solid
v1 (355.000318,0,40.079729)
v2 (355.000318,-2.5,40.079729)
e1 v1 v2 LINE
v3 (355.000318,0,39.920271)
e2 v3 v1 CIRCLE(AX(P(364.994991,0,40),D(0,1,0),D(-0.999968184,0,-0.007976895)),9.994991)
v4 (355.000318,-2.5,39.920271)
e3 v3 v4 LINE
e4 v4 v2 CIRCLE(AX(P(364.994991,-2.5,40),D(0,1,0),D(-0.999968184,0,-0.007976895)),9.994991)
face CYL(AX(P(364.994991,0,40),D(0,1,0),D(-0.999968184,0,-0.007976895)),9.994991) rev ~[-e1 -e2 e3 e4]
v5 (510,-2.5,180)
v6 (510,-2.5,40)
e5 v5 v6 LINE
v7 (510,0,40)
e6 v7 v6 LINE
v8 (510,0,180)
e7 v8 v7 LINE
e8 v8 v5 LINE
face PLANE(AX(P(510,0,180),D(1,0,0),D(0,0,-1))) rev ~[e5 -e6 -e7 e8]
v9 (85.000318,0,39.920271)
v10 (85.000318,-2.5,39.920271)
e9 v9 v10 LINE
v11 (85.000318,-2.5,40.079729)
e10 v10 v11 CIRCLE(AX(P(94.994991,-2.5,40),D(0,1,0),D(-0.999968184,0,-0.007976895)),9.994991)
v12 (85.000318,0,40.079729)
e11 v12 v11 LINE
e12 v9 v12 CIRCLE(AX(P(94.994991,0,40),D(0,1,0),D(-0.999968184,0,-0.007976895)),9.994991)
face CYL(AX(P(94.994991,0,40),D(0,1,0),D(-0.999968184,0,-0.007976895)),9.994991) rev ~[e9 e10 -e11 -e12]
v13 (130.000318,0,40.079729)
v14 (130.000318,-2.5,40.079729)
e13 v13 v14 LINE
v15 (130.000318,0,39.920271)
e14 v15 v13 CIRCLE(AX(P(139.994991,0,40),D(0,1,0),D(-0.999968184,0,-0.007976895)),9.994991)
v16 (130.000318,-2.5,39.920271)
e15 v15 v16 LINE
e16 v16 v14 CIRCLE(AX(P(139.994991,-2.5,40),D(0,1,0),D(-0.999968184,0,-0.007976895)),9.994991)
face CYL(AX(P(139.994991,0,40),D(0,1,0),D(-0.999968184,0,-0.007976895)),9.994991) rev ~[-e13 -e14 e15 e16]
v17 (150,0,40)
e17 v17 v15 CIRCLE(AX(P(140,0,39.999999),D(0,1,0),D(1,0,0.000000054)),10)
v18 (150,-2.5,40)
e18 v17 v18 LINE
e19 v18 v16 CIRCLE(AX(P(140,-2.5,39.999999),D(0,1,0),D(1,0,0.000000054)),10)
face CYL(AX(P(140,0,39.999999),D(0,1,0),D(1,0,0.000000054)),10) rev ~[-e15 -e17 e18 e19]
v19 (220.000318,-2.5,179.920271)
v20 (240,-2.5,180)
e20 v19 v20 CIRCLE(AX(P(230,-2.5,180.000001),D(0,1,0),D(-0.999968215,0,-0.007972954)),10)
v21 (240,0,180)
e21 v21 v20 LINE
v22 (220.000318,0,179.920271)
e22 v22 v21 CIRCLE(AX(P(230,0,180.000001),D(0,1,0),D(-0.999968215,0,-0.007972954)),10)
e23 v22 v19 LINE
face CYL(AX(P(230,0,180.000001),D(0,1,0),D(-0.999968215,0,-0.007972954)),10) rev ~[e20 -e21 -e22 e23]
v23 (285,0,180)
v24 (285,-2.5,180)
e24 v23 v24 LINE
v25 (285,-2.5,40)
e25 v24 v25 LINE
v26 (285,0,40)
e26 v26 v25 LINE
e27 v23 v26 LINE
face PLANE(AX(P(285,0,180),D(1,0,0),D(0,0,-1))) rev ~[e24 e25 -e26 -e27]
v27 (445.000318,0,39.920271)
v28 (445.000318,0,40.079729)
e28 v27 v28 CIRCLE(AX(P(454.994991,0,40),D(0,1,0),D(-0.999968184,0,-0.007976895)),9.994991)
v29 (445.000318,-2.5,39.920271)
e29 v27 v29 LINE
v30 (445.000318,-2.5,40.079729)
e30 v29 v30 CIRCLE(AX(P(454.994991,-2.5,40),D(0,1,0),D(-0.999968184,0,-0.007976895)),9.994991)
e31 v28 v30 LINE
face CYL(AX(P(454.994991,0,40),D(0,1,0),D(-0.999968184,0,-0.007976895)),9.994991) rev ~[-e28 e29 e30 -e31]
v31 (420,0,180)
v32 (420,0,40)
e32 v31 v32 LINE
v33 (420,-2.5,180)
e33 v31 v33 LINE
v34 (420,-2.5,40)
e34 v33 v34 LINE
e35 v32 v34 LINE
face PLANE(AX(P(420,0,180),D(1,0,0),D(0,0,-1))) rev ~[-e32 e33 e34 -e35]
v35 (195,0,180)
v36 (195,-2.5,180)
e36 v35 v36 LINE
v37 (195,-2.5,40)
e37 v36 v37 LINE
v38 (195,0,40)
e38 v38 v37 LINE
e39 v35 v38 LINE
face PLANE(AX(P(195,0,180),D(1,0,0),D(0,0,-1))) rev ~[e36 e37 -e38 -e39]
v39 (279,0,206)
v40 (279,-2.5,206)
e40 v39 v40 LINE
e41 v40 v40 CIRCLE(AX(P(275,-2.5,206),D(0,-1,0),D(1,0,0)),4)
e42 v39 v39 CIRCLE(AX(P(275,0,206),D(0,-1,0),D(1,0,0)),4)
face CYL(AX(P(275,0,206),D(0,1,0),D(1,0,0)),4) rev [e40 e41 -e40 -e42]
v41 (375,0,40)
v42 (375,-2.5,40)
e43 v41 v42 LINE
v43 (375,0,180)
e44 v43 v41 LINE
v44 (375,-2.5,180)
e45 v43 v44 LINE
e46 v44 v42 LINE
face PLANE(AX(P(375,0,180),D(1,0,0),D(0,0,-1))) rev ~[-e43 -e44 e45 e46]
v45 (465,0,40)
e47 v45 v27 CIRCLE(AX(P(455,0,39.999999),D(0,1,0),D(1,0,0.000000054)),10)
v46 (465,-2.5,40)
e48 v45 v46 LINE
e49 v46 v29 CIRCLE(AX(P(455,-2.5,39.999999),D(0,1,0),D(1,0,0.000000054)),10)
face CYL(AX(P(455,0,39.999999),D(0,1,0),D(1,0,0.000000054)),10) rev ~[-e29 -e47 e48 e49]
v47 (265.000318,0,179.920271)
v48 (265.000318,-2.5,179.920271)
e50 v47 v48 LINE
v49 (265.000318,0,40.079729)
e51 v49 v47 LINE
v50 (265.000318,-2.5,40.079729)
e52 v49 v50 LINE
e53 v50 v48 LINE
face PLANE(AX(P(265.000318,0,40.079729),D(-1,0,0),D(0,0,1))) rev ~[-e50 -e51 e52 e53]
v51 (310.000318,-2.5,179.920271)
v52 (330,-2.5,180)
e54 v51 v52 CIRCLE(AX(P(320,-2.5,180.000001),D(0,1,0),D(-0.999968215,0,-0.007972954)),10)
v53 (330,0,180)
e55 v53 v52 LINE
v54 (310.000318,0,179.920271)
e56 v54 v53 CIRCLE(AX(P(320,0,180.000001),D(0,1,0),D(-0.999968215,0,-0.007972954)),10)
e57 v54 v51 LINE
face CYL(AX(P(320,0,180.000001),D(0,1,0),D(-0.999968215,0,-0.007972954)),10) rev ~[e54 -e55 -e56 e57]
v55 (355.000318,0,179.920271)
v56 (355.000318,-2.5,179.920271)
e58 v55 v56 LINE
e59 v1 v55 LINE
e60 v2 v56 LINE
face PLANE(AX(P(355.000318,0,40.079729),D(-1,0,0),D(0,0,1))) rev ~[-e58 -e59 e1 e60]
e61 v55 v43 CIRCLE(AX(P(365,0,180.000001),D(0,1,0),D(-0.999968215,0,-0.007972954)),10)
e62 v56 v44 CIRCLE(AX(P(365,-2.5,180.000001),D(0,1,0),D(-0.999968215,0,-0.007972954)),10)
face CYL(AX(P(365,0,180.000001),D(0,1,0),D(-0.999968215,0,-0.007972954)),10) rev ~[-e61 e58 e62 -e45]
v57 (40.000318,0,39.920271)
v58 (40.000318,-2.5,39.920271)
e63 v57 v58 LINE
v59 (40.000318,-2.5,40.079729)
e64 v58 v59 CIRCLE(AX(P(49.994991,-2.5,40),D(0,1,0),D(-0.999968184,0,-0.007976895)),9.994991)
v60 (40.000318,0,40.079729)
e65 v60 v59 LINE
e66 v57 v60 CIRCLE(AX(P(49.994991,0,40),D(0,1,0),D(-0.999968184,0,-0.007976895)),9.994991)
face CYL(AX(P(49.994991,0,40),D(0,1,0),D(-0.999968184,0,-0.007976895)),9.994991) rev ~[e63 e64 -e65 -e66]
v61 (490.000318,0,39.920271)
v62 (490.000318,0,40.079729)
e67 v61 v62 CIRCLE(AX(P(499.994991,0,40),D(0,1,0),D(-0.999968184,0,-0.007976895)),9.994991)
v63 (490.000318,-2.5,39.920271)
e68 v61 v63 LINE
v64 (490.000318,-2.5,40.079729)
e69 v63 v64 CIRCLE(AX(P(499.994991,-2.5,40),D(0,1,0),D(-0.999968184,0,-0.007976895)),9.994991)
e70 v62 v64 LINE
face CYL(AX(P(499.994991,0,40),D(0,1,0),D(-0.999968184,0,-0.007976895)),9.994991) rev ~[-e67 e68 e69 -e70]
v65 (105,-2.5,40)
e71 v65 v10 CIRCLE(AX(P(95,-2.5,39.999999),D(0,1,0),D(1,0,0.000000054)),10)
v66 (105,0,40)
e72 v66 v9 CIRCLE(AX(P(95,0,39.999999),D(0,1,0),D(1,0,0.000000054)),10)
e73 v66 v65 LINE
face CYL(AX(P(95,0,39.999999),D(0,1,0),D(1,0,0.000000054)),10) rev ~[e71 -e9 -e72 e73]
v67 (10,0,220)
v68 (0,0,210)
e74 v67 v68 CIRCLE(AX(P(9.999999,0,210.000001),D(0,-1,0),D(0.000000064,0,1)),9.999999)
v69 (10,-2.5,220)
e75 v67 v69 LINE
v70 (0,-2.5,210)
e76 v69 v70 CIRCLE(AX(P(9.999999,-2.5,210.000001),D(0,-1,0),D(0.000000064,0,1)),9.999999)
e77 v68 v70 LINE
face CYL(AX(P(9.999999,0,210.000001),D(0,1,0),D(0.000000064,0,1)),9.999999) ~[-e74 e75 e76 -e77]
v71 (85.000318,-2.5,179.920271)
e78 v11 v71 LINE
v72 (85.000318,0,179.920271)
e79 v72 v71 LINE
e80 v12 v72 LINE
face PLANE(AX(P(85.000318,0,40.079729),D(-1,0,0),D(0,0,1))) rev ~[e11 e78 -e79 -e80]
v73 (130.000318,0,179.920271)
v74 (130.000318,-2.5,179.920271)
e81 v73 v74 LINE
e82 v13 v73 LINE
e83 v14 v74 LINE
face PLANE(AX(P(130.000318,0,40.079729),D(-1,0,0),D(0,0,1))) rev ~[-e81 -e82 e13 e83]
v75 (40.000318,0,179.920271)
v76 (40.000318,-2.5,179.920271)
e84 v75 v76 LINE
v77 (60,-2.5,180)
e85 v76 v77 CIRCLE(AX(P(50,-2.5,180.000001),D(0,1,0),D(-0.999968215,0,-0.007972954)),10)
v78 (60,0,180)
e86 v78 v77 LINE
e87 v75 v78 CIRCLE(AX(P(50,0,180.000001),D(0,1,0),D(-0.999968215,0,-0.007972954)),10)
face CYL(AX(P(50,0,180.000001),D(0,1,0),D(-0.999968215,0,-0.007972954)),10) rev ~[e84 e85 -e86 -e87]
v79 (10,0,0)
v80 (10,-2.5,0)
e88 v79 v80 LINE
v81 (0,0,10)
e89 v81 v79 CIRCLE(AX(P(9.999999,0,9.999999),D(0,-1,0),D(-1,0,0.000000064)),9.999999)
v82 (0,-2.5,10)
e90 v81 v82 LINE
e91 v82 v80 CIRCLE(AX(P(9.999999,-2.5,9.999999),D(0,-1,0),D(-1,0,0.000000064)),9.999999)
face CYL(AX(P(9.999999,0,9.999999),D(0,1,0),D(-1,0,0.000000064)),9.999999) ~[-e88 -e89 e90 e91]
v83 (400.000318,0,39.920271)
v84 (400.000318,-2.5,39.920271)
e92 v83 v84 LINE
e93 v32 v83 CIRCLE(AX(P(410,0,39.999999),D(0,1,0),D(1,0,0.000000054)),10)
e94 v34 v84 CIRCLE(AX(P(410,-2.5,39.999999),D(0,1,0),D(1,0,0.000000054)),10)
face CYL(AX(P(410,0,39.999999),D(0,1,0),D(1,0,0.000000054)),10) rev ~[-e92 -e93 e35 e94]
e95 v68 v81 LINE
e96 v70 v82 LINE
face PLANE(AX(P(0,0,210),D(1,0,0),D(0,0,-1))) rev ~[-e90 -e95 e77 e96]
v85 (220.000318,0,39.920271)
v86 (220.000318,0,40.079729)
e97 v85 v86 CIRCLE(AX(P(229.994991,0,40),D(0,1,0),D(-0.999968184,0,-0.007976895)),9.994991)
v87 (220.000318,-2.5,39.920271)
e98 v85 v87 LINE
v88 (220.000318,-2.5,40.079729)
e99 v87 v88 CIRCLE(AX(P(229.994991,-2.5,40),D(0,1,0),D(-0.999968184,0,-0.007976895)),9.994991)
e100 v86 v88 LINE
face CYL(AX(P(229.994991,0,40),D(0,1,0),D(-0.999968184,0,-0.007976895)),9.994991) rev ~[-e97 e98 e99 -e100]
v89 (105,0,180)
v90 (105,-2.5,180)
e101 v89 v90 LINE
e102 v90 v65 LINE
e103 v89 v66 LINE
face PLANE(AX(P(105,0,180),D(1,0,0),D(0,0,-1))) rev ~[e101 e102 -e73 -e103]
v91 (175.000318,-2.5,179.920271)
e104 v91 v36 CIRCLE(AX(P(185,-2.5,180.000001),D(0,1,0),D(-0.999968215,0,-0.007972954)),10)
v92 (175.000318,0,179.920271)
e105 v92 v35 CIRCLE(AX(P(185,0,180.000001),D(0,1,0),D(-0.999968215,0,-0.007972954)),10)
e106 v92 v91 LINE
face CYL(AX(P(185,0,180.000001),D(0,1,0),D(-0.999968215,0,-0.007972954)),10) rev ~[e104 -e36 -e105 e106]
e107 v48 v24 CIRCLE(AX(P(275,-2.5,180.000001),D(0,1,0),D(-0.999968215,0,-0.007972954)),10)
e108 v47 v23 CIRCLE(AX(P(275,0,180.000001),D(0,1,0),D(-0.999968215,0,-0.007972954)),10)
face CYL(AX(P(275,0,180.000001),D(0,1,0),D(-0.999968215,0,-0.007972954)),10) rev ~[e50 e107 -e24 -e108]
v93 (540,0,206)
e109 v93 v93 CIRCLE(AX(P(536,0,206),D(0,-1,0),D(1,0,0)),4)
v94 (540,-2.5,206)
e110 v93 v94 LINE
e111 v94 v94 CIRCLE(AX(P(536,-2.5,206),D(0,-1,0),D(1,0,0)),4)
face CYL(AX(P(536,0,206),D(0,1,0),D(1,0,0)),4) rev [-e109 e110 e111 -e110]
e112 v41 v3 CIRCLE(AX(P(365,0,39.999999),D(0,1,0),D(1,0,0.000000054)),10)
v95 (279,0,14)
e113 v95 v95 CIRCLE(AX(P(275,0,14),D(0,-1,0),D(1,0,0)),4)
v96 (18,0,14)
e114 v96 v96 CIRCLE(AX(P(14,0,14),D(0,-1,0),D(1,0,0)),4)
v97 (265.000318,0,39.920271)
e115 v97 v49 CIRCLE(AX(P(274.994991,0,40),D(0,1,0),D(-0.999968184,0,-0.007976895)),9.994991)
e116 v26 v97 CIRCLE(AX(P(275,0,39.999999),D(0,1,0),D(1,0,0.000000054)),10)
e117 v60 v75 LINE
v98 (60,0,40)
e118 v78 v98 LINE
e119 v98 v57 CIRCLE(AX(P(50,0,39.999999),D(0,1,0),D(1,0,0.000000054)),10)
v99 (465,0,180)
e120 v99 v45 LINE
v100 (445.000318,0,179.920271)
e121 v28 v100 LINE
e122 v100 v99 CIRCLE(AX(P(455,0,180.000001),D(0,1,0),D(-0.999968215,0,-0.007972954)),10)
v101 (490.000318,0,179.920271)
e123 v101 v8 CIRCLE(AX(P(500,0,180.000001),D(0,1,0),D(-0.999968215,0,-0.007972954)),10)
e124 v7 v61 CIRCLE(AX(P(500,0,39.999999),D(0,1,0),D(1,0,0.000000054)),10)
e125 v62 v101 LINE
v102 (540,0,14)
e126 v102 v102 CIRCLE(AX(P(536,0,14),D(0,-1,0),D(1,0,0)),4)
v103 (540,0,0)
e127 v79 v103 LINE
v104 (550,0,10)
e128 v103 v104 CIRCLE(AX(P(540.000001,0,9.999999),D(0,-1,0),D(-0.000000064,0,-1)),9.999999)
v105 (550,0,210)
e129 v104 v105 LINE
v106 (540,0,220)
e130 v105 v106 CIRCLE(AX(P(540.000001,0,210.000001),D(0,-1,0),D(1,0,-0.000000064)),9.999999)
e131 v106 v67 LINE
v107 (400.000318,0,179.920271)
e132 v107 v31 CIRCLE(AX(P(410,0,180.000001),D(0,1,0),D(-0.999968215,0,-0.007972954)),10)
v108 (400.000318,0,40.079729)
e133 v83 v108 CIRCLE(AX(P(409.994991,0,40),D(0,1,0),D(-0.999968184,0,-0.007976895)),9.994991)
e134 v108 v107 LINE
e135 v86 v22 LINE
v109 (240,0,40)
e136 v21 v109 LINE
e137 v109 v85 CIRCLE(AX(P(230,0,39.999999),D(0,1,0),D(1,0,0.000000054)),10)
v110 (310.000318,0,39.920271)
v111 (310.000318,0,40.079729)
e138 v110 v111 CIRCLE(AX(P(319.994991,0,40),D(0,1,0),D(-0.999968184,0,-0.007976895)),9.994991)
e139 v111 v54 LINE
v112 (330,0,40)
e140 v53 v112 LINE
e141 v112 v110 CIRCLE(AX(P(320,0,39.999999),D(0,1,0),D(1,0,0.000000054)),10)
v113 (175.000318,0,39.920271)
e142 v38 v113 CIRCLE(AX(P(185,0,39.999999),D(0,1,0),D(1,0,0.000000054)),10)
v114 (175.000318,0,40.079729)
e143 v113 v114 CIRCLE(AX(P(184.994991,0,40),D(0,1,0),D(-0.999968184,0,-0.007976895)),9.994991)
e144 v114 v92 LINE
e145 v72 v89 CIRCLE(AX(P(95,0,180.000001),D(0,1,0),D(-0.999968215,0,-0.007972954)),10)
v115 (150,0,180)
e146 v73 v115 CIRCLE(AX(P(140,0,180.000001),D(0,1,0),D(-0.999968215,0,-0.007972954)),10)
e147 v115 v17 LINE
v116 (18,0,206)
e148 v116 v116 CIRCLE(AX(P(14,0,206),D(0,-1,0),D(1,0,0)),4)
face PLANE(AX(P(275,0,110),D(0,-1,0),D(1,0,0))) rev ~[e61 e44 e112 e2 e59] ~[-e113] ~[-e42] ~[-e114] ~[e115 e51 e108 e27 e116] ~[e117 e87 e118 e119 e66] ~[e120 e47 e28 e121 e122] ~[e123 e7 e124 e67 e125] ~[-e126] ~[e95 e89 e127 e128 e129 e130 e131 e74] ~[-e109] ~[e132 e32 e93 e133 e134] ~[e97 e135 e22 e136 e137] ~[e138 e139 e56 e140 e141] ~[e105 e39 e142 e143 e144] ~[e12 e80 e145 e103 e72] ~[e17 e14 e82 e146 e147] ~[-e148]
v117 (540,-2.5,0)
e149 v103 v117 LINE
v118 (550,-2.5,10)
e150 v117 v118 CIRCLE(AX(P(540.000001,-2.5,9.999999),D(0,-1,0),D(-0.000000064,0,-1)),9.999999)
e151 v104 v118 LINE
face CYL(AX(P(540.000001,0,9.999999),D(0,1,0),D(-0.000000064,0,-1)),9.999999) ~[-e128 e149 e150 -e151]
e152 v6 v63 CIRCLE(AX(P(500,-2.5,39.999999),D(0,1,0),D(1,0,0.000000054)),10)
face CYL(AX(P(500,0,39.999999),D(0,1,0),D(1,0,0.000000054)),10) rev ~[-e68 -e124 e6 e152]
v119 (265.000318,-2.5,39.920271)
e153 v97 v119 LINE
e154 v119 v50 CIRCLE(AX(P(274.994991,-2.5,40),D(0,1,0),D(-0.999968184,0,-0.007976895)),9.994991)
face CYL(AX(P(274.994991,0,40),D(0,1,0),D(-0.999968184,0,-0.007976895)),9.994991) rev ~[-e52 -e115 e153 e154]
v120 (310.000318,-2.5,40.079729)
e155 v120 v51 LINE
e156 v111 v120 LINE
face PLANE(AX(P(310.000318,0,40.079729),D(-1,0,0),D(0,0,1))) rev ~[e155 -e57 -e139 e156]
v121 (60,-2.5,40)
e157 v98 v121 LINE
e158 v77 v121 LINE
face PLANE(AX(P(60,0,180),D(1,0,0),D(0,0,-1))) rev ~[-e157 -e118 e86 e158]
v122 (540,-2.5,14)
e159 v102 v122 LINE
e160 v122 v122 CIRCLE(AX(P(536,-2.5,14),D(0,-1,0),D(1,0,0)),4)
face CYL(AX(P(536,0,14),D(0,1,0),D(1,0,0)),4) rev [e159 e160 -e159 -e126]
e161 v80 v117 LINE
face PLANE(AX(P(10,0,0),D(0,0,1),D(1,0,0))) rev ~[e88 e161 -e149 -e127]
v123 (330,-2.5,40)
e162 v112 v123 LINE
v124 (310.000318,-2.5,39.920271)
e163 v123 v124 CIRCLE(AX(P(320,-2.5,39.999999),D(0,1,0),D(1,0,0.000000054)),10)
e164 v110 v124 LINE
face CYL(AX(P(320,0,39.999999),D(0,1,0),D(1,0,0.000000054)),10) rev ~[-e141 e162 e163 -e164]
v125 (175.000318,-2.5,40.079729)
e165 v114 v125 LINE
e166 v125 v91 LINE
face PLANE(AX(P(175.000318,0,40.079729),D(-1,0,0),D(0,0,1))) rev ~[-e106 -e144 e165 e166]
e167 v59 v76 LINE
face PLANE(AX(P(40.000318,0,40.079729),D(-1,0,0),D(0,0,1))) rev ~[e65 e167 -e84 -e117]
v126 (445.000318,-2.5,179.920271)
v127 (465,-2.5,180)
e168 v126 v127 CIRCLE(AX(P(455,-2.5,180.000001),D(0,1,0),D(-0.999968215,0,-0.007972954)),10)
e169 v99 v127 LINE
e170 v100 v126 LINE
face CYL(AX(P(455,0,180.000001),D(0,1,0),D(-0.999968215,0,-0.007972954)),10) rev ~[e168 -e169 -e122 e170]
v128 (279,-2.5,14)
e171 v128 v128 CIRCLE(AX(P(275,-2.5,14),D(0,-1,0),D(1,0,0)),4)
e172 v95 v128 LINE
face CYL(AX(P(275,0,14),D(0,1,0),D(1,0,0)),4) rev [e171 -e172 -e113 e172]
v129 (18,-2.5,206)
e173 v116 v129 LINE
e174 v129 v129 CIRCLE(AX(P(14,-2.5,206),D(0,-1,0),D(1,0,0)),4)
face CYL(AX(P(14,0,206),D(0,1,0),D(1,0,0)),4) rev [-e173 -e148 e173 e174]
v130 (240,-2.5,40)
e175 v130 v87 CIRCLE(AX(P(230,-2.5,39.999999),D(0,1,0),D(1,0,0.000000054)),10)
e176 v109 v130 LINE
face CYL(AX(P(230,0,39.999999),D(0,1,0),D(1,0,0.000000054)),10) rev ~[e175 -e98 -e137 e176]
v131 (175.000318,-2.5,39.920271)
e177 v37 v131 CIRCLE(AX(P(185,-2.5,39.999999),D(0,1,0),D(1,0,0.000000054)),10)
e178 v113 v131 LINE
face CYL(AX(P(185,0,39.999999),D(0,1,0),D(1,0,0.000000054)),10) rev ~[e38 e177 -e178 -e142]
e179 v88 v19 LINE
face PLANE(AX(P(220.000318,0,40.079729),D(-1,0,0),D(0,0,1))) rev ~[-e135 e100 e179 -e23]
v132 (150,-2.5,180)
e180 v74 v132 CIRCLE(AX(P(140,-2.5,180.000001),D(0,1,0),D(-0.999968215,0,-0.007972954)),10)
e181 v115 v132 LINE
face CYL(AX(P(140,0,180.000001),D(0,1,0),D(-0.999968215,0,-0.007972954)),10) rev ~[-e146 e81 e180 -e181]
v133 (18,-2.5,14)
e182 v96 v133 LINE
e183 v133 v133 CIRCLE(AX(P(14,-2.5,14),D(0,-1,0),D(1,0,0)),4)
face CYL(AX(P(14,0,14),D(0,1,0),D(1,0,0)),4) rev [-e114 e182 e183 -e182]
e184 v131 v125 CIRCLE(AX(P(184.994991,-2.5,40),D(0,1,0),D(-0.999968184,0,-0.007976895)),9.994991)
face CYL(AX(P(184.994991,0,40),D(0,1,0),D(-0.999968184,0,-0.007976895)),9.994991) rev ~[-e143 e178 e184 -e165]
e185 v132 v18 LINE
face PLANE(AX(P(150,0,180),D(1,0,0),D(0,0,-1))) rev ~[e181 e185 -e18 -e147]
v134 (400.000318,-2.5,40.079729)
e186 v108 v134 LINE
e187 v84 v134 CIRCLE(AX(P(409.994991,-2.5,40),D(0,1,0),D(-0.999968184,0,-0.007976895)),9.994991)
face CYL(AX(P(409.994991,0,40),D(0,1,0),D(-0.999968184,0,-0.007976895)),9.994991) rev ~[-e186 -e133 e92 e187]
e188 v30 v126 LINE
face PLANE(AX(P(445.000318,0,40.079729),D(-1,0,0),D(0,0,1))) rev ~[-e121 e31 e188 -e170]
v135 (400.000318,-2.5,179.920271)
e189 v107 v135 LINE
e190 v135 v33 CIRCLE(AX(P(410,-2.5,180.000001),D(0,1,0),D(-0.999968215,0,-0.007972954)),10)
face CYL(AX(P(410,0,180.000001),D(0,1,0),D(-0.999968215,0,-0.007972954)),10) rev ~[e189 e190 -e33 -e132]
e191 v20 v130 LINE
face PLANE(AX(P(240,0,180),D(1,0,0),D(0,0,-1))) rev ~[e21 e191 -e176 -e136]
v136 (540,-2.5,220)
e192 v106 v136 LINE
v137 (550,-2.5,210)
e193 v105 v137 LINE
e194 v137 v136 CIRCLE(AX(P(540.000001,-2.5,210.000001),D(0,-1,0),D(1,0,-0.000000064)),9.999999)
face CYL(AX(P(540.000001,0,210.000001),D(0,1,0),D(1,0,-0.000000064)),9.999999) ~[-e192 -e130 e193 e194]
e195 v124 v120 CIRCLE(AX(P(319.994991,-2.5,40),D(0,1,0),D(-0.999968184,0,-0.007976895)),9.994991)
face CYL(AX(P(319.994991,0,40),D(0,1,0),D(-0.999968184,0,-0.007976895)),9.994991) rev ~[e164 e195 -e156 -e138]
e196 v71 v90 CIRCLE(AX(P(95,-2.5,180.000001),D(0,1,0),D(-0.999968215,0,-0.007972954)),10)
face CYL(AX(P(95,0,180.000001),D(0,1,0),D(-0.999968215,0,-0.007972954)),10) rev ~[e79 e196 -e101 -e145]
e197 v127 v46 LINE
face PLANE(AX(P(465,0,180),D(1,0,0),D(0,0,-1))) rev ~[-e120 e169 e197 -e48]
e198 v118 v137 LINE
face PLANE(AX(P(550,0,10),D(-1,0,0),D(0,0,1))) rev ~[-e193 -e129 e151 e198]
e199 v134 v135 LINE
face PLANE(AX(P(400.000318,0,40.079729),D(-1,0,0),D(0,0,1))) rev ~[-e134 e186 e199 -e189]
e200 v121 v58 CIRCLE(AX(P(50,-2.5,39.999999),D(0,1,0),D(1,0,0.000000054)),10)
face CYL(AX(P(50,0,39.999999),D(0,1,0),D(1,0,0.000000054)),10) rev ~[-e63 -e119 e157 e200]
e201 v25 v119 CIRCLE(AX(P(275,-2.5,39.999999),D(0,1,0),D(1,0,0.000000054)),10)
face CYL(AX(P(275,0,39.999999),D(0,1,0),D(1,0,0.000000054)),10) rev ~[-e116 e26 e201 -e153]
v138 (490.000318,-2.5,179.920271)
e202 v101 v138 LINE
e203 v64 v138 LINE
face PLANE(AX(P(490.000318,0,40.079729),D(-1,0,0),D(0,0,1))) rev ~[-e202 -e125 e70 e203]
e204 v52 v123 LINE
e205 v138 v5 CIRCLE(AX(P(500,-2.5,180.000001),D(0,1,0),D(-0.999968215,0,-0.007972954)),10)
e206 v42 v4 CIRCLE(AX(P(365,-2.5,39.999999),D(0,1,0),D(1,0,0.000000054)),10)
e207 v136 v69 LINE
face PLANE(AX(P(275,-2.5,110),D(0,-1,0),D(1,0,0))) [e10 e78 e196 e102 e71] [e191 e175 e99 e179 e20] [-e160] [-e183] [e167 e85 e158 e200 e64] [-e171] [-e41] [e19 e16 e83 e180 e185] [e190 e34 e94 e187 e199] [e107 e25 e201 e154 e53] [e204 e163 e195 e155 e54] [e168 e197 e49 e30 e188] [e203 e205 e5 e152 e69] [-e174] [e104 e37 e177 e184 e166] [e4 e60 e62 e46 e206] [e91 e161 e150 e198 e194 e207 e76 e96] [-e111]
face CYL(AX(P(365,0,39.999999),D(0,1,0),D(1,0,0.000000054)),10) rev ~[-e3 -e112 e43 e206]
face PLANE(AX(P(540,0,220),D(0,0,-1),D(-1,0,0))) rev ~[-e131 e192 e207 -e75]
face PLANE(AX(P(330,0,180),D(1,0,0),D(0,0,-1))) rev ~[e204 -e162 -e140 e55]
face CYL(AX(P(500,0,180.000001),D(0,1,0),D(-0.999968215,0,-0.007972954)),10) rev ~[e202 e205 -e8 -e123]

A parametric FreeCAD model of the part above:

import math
import FreeCAD as App
import Part
import Sketcher
from FreeCAD import Vector

doc = App.newDocument("Part")
body = doc.addObject("PartDesign::Body", "Body")

# Sketch on XZ plane
sketch1 = body.newObject("Sketcher::SketchObject", "Sketch")
sketch1.AttachmentSupport = (doc.getObject("XZ_Plane"), [""])
sketch1.MapMode = "FlatFace"
sketch1.addGeometry(Part.ArcOfCircle(Part.Circle(Vector(9.999999, 9.999999, 0), Vector(0, 0, 1), 9.999999), math.radians(179.999996), math.radians(270.000004)), False)
sketch1.addGeometry(Part.LineSegment(Vector(10, 0, 0), Vector(540, 0, 0)), False)
sketch1.addGeometry(Part.ArcOfCircle(Part.Circle(Vector(540.000001, 9.999999, 0), Vector(0, 0, 1), 9.999999), math.radians(-90.000004), math.radians(0.000004)), False)
sketch1.addGeometry(Part.LineSegment(Vector(550, 10, 0), Vector(550, 210, 0)), False)
sketch1.addGeometry(Part.ArcOfCircle(Part.Circle(Vector(540.000001, 210.000001, 0), Vector(0, 0, 1), 9.999999), math.radians(-0.000004), math.radians(90.000004)), False)
sketch1.addGeometry(Part.LineSegment(Vector(540, 220, 0), Vector(10, 220, 0)), False)
sketch1.addGeometry(Part.ArcOfCircle(Part.Circle(Vector(9.999999, 210.000001, 0), Vector(0, 0, 1), 9.999999), math.radians(89.999996), math.radians(180.000004)), False)
sketch1.addGeometry(Part.LineSegment(Vector(0, 210, 0), Vector(0, 10, 0)), False)
sketch1.addGeometry(Part.Circle(Vector(14, 14, 0), Vector(0, 0, 1), 4), False)
sketch1.addGeometry(Part.Circle(Vector(275, 14, 0), Vector(0, 0, 1), 4), False)
sketch1.addGeometry(Part.Circle(Vector(536, 14, 0), Vector(0, 0, 1), 4), False)
sketch1.addGeometry(Part.LineSegment(Vector(40.000318, 40.079729, 0), Vector(40.000318, 179.920271, 0)), False)
sketch1.addGeometry(Part.ArcOfCircle(Part.Circle(Vector(50, 180.000001, 0), Vector(0, 0, 1), 10), math.radians(-0.000003), math.radians(180.456821)), False)
sketch1.addGeometry(Part.LineSegment(Vector(60, 180, 0), Vector(60, 40, 0)), False)
sketch1.addGeometry(Part.ArcOfCircle(Part.Circle(Vector(50, 39.999999, 0), Vector(0, 0, 1), 10), math.radians(-179.543185), math.radians(0.000003)), False)
sketch1.addGeometry(Part.ArcOfCircle(Part.Circle(Vector(49.994991, 40, 0), Vector(0, 0, 1), 9.994991), math.radians(179.542953), math.radians(180.457047)), False)
sketch1.addGeometry(Part.ArcOfCircle(Part.Circle(Vector(94.994991, 40, 0), Vector(0, 0, 1), 9.994991), math.radians(179.542953), math.radians(180.457047)), False)
sketch1.addGeometry(Part.LineSegment(Vector(85.000318, 40.079729, 0), Vector(85.000318, 179.920271, 0)), False)
sketch1.addGeometry(Part.ArcOfCircle(Part.Circle(Vector(95, 180.000001, 0), Vector(0, 0, 1), 10), math.radians(-0.000003), math.radians(180.456821)), False)
sketch1.addGeometry(Part.LineSegment(Vector(105, 180, 0), Vector(105, 40, 0)), False)
sketch1.addGeometry(Part.ArcOfCircle(Part.Circle(Vector(95, 39.999999, 0), Vector(0, 0, 1), 10), math.radians(-179.543185), math.radians(0.000003)), False)
sketch1.addGeometry(Part.ArcOfCircle(Part.Circle(Vector(139.994991, 40, 0), Vector(0, 0, 1), 9.994991), math.radians(179.542953), math.radians(180.457047)), False)
sketch1.addGeometry(Part.LineSegment(Vector(130.000318, 40.079729, 0), Vector(130.000318, 179.920271, 0)), False)
sketch1.addGeometry(Part.ArcOfCircle(Part.Circle(Vector(140, 180.000001, 0), Vector(0, 0, 1), 10), math.radians(-0.000003), math.radians(180.456821)), False)
sketch1.addGeometry(Part.LineSegment(Vector(150, 180, 0), Vector(150, 40, 0)), False)
sketch1.addGeometry(Part.ArcOfCircle(Part.Circle(Vector(140, 39.999999, 0), Vector(0, 0, 1), 10), math.radians(-179.543185), math.radians(0.000003)), False)
sketch1.addGeometry(Part.ArcOfCircle(Part.Circle(Vector(184.994991, 40, 0), Vector(0, 0, 1), 9.994991), math.radians(179.542953), math.radians(180.457047)), False)
sketch1.addGeometry(Part.LineSegment(Vector(175.000318, 40.079729, 0), Vector(175.000318, 179.920271, 0)), False)
sketch1.addGeometry(Part.ArcOfCircle(Part.Circle(Vector(185, 180.000001, 0), Vector(0, 0, 1), 10), math.radians(-0.000003), math.radians(180.456821)), False)
sketch1.addGeometry(Part.LineSegment(Vector(195, 180, 0), Vector(195, 40, 0)), False)
sketch1.addGeometry(Part.ArcOfCircle(Part.Circle(Vector(185, 39.999999, 0), Vector(0, 0, 1), 10), math.radians(-179.543185), math.radians(0.000003)), False)
sketch1.addGeometry(Part.ArcOfCircle(Part.Circle(Vector(229.994991, 40, 0), Vector(0, 0, 1), 9.994991), math.radians(179.542953), math.radians(180.457047)), False)
sketch1.addGeometry(Part.LineSegment(Vector(220.000318, 40.079729, 0), Vector(220.000318, 179.920271, 0)), False)
sketch1.addGeometry(Part.ArcOfCircle(Part.Circle(Vector(230, 180.000001, 0), Vector(0, 0, 1), 10), math.radians(-0.000003), math.radians(180.456821)), False)
sketch1.addGeometry(Part.LineSegment(Vector(240, 180, 0), Vector(240, 40, 0)), False)
sketch1.addGeometry(Part.ArcOfCircle(Part.Circle(Vector(230, 39.999999, 0), Vector(0, 0, 1), 10), math.radians(-179.543185), math.radians(0.000003)), False)
sketch1.addGeometry(Part.Circle(Vector(14, 206, 0), Vector(0, 0, 1), 4), False)
sketch1.addGeometry(Part.ArcOfCircle(Part.Circle(Vector(274.994991, 40, 0), Vector(0, 0, 1), 9.994991), math.radians(179.542953), math.radians(180.457047)), False)
sketch1.addGeometry(Part.LineSegment(Vector(265.000318, 40.079729, 0), Vector(265.000318, 179.920271, 0)), False)
sketch1.addGeometry(Part.ArcOfCircle(Part.Circle(Vector(275, 180.000001, 0), Vector(0, 0, 1), 10), math.radians(-0.000003), math.radians(180.456821)), False)
sketch1.addGeometry(Part.LineSegment(Vector(285, 180, 0), Vector(285, 40, 0)), False)
sketch1.addGeometry(Part.ArcOfCircle(Part.Circle(Vector(275, 39.999999, 0), Vector(0, 0, 1), 10), math.radians(-179.543185), math.radians(0.000003)), False)
sketch1.addGeometry(Part.ArcOfCircle(Part.Circle(Vector(319.994991, 40, 0), Vector(0, 0, 1), 9.994991), math.radians(179.542953), math.radians(180.457047)), False)
sketch1.addGeometry(Part.LineSegment(Vector(310.000318, 40.079729, 0), Vector(310.000318, 179.920271, 0)), False)
sketch1.addGeometry(Part.ArcOfCircle(Part.Circle(Vector(320, 180.000001, 0), Vector(0, 0, 1), 10), math.radians(-0.000003), math.radians(180.456821)), False)
sketch1.addGeometry(Part.LineSegment(Vector(330, 180, 0), Vector(330, 40, 0)), False)
sketch1.addGeometry(Part.ArcOfCircle(Part.Circle(Vector(320, 39.999999, 0), Vector(0, 0, 1), 10), math.radians(-179.543185), math.radians(0.000003)), False)
sketch1.addGeometry(Part.ArcOfCircle(Part.Circle(Vector(364.994991, 40, 0), Vector(0, 0, 1), 9.994991), math.radians(179.542953), math.radians(180.457047)), False)
sketch1.addGeometry(Part.LineSegment(Vector(355.000318, 40.079729, 0), Vector(355.000318, 179.920271, 0)), False)
sketch1.addGeometry(Part.ArcOfCircle(Part.Circle(Vector(365, 180.000001, 0), Vector(0, 0, 1), 10), math.radians(-0.000003), math.radians(180.456821)), False)
sketch1.addGeometry(Part.LineSegment(Vector(375, 180, 0), Vector(375, 40, 0)), False)
sketch1.addGeometry(Part.ArcOfCircle(Part.Circle(Vector(365, 39.999999, 0), Vector(0, 0, 1), 10), math.radians(-179.543185), math.radians(0.000003)), False)
sketch1.addGeometry(Part.ArcOfCircle(Part.Circle(Vector(409.994991, 40, 0), Vector(0, 0, 1), 9.994991), math.radians(179.542953), math.radians(180.457047)), False)
sketch1.addGeometry(Part.LineSegment(Vector(400.000318, 40.079729, 0), Vector(400.000318, 179.920271, 0)), False)
sketch1.addGeometry(Part.ArcOfCircle(Part.Circle(Vector(410, 180.000001, 0), Vector(0, 0, 1), 10), math.radians(-0.000003), math.radians(180.456821)), False)
sketch1.addGeometry(Part.LineSegment(Vector(420, 180, 0), Vector(420, 40, 0)), False)
sketch1.addGeometry(Part.ArcOfCircle(Part.Circle(Vector(410, 39.999999, 0), Vector(0, 0, 1), 10), math.radians(-179.543185), math.radians(0.000003)), False)
sketch1.addGeometry(Part.ArcOfCircle(Part.Circle(Vector(454.994991, 40, 0), Vector(0, 0, 1), 9.994991), math.radians(179.542953), math.radians(180.457047)), False)
sketch1.addGeometry(Part.LineSegment(Vector(445.000318, 40.079729, 0), Vector(445.000318, 179.920271, 0)), False)
sketch1.addGeometry(Part.ArcOfCircle(Part.Circle(Vector(455, 180.000001, 0), Vector(0, 0, 1), 10), math.radians(-0.000003), math.radians(180.456821)), False)
sketch1.addGeometry(Part.LineSegment(Vector(465, 180, 0), Vector(465, 40, 0)), False)
sketch1.addGeometry(Part.ArcOfCircle(Part.Circle(Vector(455, 39.999999, 0), Vector(0, 0, 1), 10), math.radians(-179.543185), math.radians(0.000003)), False)
sketch1.addGeometry(Part.ArcOfCircle(Part.Circle(Vector(499.994991, 40, 0), Vector(0, 0, 1), 9.994991), math.radians(179.542953), math.radians(180.457047)), False)
sketch1.addGeometry(Part.LineSegment(Vector(490.000318, 40.079729, 0), Vector(490.000318, 179.920271, 0)), False)
sketch1.addGeometry(Part.ArcOfCircle(Part.Circle(Vector(500, 180.000001, 0), Vector(0, 0, 1), 10), math.radians(-0.000003), math.radians(180.456821)), False)
sketch1.addGeometry(Part.LineSegment(Vector(510, 180, 0), Vector(510, 40, 0)), False)
sketch1.addGeometry(Part.ArcOfCircle(Part.Circle(Vector(500, 39.999999, 0), Vector(0, 0, 1), 10), math.radians(-179.543185), math.radians(0.000003)), False)
sketch1.addGeometry(Part.Circle(Vector(275, 206, 0), Vector(0, 0, 1), 4), False)
sketch1.addGeometry(Part.Circle(Vector(536, 206, 0), Vector(0, 0, 1), 4), False)
sketch1.addConstraint(Sketcher.Constraint("Tangent", 0, 2, 1, 1))
sketch1.addConstraint(Sketcher.Constraint("Tangent", 1, 2, 2, 1))
sketch1.addConstraint(Sketcher.Constraint("Tangent", 2, 2, 3, 1))
sketch1.addConstraint(Sketcher.Constraint("Tangent", 3, 2, 4, 1))
sketch1.addConstraint(Sketcher.Constraint("Tangent", 4, 2, 5, 1))
sketch1.addConstraint(Sketcher.Constraint("Tangent", 5, 2, 6, 1))
sketch1.addConstraint(Sketcher.Constraint("Tangent", 6, 2, 7, 1))
sketch1.addConstraint(Sketcher.Constraint("Tangent", 7, 2, 0, 1))
sketch1.addConstraint(Sketcher.Constraint("Coincident", 11, 2, 12, 2))
sketch1.addConstraint(Sketcher.Constraint("Tangent", 12, 1, 13, 1))
sketch1.addConstraint(Sketcher.Constraint("Tangent", 13, 2, 14, 2))
sketch1.addConstraint(Sketcher.Constraint("Coincident", 14, 1, 15, 2))
sketch1.addConstraint(Sketcher.Constraint("Coincident", 15, 1, 11, 1))
sketch1.addConstraint(Sketcher.Constraint("Coincident", 16, 1, 17, 1))
sketch1.addConstraint(Sketcher.Constraint("Coincident", 17, 2, 18, 2))
sketch1.addConstraint(Sketcher.Constraint("Tangent", 18, 1, 19, 1))
sketch1.addConstraint(Sketcher.Constraint("Tangent", 19, 2, 20, 2))
sketch1.addConstraint(Sketcher.Constraint("Coincident", 20, 1, 16, 2))
sketch1.addConstraint(Sketcher.Constraint("Coincident", 21, 1, 22, 1))
sketch1.addConstraint(Sketcher.Constraint("Coincident", 22, 2, 23, 2))
sketch1.addConstraint(Sketcher.Constraint("Tangent", 23, 1, 24, 1))
sketch1.addConstraint(Sketcher.Constraint("Tangent", 24, 2, 25, 2))
sketch1.addConstraint(Sketcher.Constraint("Coincident", 25, 1, 21, 2))
sketch1.addConstraint(Sketcher.Constraint("Coincident", 26, 1, 27, 1))
sketch1.addConstraint(Sketcher.Constraint("Coincident", 27, 2, 28, 2))
sketch1.addConstraint(Sketcher.Constraint("Tangent", 28, 1, 29, 1))
sketch1.addConstraint(Sketcher.Constraint("Tangent", 29, 2, 30, 2))
sketch1.addConstraint(Sketcher.Constraint("Coincident", 30, 1, 26, 2))
sketch1.addConstraint(Sketcher.Constraint("Coincident", 31, 1, 32, 1))
sketch1.addConstraint(Sketcher.Constraint("Coincident", 32, 2, 33, 2))
sketch1.addConstraint(Sketcher.Constraint("Tangent", 33, 1, 34, 1))
sketch1.addConstraint(Sketcher.Constraint("Tangent", 34, 2, 35, 2))
sketch1.addConstraint(Sketcher.Constraint("Coincident", 35, 1, 31, 2))
sketch1.addConstraint(Sketcher.Constraint("Coincident", 37, 1, 38, 1))
sketch1.addConstraint(Sketcher.Constraint("Coincident", 38, 2, 39, 2))
sketch1.addConstraint(Sketcher.Constraint("Tangent", 39, 1, 40, 1))
sketch1.addConstraint(Sketcher.Constraint("Tangent", 40, 2, 41, 2))
sketch1.addConstraint(Sketcher.Constraint("Coincident", 41, 1, 37, 2))
sketch1.addConstraint(Sketcher.Constraint("Coincident", 42, 1, 43, 1))
sketch1.addConstraint(Sketcher.Constraint("Coincident", 43, 2, 44, 2))
sketch1.addConstraint(Sketcher.Constraint("Tangent", 44, 1, 45, 1))
sketch1.addConstraint(Sketcher.Constraint("Tangent", 45, 2, 46, 2))
sketch1.addConstraint(Sketcher.Constraint("Coincident", 46, 1, 42, 2))
sketch1.addConstraint(Sketcher.Constraint("Coincident", 47, 1, 48, 1))
sketch1.addConstraint(Sketcher.Constraint("Coincident", 48, 2, 49, 2))
sketch1.addConstraint(Sketcher.Constraint("Tangent", 49, 1, 50, 1))
sketch1.addConstraint(Sketcher.Constraint("Tangent", 50, 2, 51, 2))
sketch1.addConstraint(Sketcher.Constraint("Coincident", 51, 1, 47, 2))
sketch1.addConstraint(Sketcher.Constraint("Coincident", 52, 1, 53, 1))
sketch1.addConstraint(Sketcher.Constraint("Coincident", 53, 2, 54, 2))
sketch1.addConstraint(Sketcher.Constraint("Tangent", 54, 1, 55, 1))
sketch1.addConstraint(Sketcher.Constraint("Tangent", 55, 2, 56, 2))
sketch1.addConstraint(Sketcher.Constraint("Coincident", 56, 1, 52, 2))
sketch1.addConstraint(Sketcher.Constraint("Coincident", 57, 1, 58, 1))
sketch1.addConstraint(Sketcher.Constraint("Coincident", 58, 2, 59, 2))
sketch1.addConstraint(Sketcher.Constraint("Tangent", 59, 1, 60, 1))
sketch1.addConstraint(Sketcher.Constraint("Tangent", 60, 2, 61, 2))
sketch1.addConstraint(Sketcher.Constraint("Coincident", 61, 1, 57, 2))
sketch1.addConstraint(Sketcher.Constraint("Coincident", 62, 1, 63, 1))
sketch1.addConstraint(Sketcher.Constraint("Coincident", 63, 2, 64, 2))
sketch1.addConstraint(Sketcher.Constraint("Tangent", 64, 1, 65, 1))
sketch1.addConstraint(Sketcher.Constraint("Tangent", 65, 2, 66, 2))
sketch1.addConstraint(Sketcher.Constraint("Coincident", 66, 1, 62, 2))
sketch1.addConstraint(Sketcher.Constraint("Horizontal", 1))
sketch1.addConstraint(Sketcher.Constraint("Vertical", 3))
sketch1.addConstraint(Sketcher.Constraint("Horizontal", 5))
sketch1.addConstraint(Sketcher.Constraint("Vertical", 7))
sketch1.addConstraint(Sketcher.Constraint("Vertical", 11))
sketch1.addConstraint(Sketcher.Constraint("Vertical", 13))
sketch1.addConstraint(Sketcher.Constraint("Vertical", 17))
sketch1.addConstraint(Sketcher.Constraint("Vertical", 19))
sketch1.addConstraint(Sketcher.Constraint("Vertical", 22))
sketch1.addConstraint(Sketcher.Constraint("Vertical", 24))
sketch1.addConstraint(Sketcher.Constraint("Vertical", 27))
sketch1.addConstraint(Sketcher.Constraint("Vertical", 29))
sketch1.addConstraint(Sketcher.Constraint("Vertical", 32))
sketch1.addConstraint(Sketcher.Constraint("Vertical", 34))
sketch1.addConstraint(Sketcher.Constraint("Vertical", 38))
sketch1.addConstraint(Sketcher.Constraint("Vertical", 40))
sketch1.addConstraint(Sketcher.Constraint("Vertical", 43))
sketch1.addConstraint(Sketcher.Constraint("Vertical", 45))
sketch1.addConstraint(Sketcher.Constraint("Vertical", 48))
sketch1.addConstraint(Sketcher.Constraint("Vertical", 50))
sketch1.addConstraint(Sketcher.Constraint("Vertical", 53))
sketch1.addConstraint(Sketcher.Constraint("Vertical", 55))
sketch1.addConstraint(Sketcher.Constraint("Vertical", 58))
sketch1.addConstraint(Sketcher.Constraint("Vertical", 60))
sketch1.addConstraint(Sketcher.Constraint("Vertical", 63))
sketch1.addConstraint(Sketcher.Constraint("Vertical", 65))
sketch1.addConstraint(Sketcher.Constraint("Equal", 0, 2))
sketch1.addConstraint(Sketcher.Constraint("Equal", 2, 4))
sketch1.addConstraint(Sketcher.Constraint("Equal", 4, 6))
sketch1.addConstraint(Sketcher.Constraint("Equal", 8, 9))
sketch1.addConstraint(Sketcher.Constraint("Equal", 9, 10))
sketch1.addConstraint(Sketcher.Constraint("Equal", 6, 12))
sketch1.addConstraint(Sketcher.Constraint("Equal", 12, 14))
sketch1.addConstraint(Sketcher.Constraint("Equal", 15, 16))
sketch1.addConstraint(Sketcher.Constraint("Equal", 14, 18))
sketch1.addConstraint(Sketcher.Constraint("Equal", 18, 20))
sketch1.addConstraint(Sketcher.Constraint("Equal", 16, 21))
sketch1.addConstraint(Sketcher.Constraint("Equal", 20, 23))
sketch1.addConstraint(Sketcher.Constraint("Equal", 23, 25))
sketch1.addConstraint(Sketcher.Constraint("Equal", 21, 26))
sketch1.addConstraint(Sketcher.Constraint("Equal", 25, 28))
sketch1.addConstraint(Sketcher.Constraint("Equal", 28, 30))
sketch1.addConstraint(Sketcher.Constraint("Equal", 26, 31))
sketch1.addConstraint(Sketcher.Constraint("Equal", 30, 33))
sketch1.addConstraint(Sketcher.Constraint("Equal", 33, 35))
sketch1.addConstraint(Sketcher.Constraint("Equal", 10, 36))
sketch1.addConstraint(Sketcher.Constraint("Equal", 31, 37))
sketch1.addConstraint(Sketcher.Constraint("Equal", 35, 39))
sketch1.addConstraint(Sketcher.Constraint("Equal", 39, 41))
sketch1.addConstraint(Sketcher.Constraint("Equal", 37, 42))
sketch1.addConstraint(Sketcher.Constraint("Equal", 41, 44))
sketch1.addConstraint(Sketcher.Constraint("Equal", 44, 46))
sketch1.addConstraint(Sketcher.Constraint("Equal", 42, 47))
sketch1.addConstraint(Sketcher.Constraint("Equal", 46, 49))
sketch1.addConstraint(Sketcher.Constraint("Equal", 49, 51))
sketch1.addConstraint(Sketcher.Constraint("Equal", 47, 52))
sketch1.addConstraint(Sketcher.Constraint("Equal", 51, 54))
sketch1.addConstraint(Sketcher.Constraint("Equal", 54, 56))
sketch1.addConstraint(Sketcher.Constraint("Equal", 52, 57))
sketch1.addConstraint(Sketcher.Constraint("Equal", 56, 59))
sketch1.addConstraint(Sketcher.Constraint("Equal", 59, 61))
sketch1.addConstraint(Sketcher.Constraint("Equal", 57, 62))
sketch1.addConstraint(Sketcher.Constraint("Equal", 61, 64))
sketch1.addConstraint(Sketcher.Constraint("Equal", 64, 66))
sketch1.addConstraint(Sketcher.Constraint("Equal", 36, 67))
sketch1.addConstraint(Sketcher.Constraint("Equal", 67, 68))
sketch1.addConstraint(Sketcher.Constraint("PointOnObject", 0, 2, -1))
sketch1.addConstraint(Sketcher.Constraint("PointOnObject", 6, 2, -2))
sketch1.addConstraint(Sketcher.Constraint("Horizontal", 8, 3, 9, 3))
sketch1.addConstraint(Sketcher.Constraint("Horizontal", 9, 3, 10, 3))
sketch1.addConstraint(Sketcher.Constraint("Horizontal", 14, 3, 15, 3))
sketch1.addConstraint(Sketcher.Constraint("Horizontal", 15, 3, 16, 3))
sketch1.addConstraint(Sketcher.Constraint("Horizontal", 12, 3, 18, 3))
sketch1.addConstraint(Sketcher.Constraint("Horizontal", 16, 3, 20, 3))
sketch1.addConstraint(Sketcher.Constraint("Horizontal", 20, 3, 21, 3))
sketch1.addConstraint(Sketcher.Constraint("Horizontal", 18, 3, 23, 3))
sketch1.addConstraint(Sketcher.Constraint("Horizontal", 21, 3, 25, 3))
sketch1.addConstraint(Sketcher.Constraint("Horizontal", 25, 3, 26, 3))
sketch1.addConstraint(Sketcher.Constraint("Horizontal", 23, 3, 28, 3))
sketch1.addConstraint(Sketcher.Constraint("Horizontal", 26, 3, 30, 3))
sketch1.addConstraint(Sketcher.Constraint("Horizontal", 30, 3, 31, 3))
sketch1.addConstraint(Sketcher.Constraint("Horizontal", 28, 3, 33, 3))
sketch1.addConstraint(Sketcher.Constraint("Horizontal", 31, 3, 35, 3))
sketch1.addConstraint(Sketcher.Constraint("Horizontal", 35, 3, 37, 3))
sketch1.addConstraint(Sketcher.Constraint("Horizontal", 33, 3, 39, 3))
sketch1.addConstraint(Sketcher.Constraint("Horizontal", 37, 3, 41, 3))
sketch1.addConstraint(Sketcher.Constraint("Horizontal", 41, 3, 42, 3))
sketch1.addConstraint(Sketcher.Constraint("Horizontal", 39, 3, 44, 3))
sketch1.addConstraint(Sketcher.Constraint("Horizontal", 42, 3, 46, 3))
sketch1.addConstraint(Sketcher.Constraint("Horizontal", 46, 3, 47, 3))
sketch1.addConstraint(Sketcher.Constraint("Horizontal", 44, 3, 49, 3))
sketch1.addConstraint(Sketcher.Constraint("Horizontal", 47, 3, 51, 3))
sketch1.addConstraint(Sketcher.Constraint("Horizontal", 51, 3, 52, 3))
sketch1.addConstraint(Sketcher.Constraint("Horizontal", 49, 3, 54, 3))
sketch1.addConstraint(Sketcher.Constraint("Horizontal", 52, 3, 56, 3))
sketch1.addConstraint(Sketcher.Constraint("Horizontal", 56, 3, 57, 3))
sketch1.addConstraint(Sketcher.Constraint("Horizontal", 54, 3, 59, 3))
sketch1.addConstraint(Sketcher.Constraint("Horizontal", 57, 3, 61, 3))
sketch1.addConstraint(Sketcher.Constraint("Horizontal", 61, 3, 62, 3))
sketch1.addConstraint(Sketcher.Constraint("Horizontal", 59, 3, 64, 3))
sketch1.addConstraint(Sketcher.Constraint("Horizontal", 62, 3, 66, 3))
sketch1.addConstraint(Sketcher.Constraint("Horizontal", 36, 3, 67, 3))
sketch1.addConstraint(Sketcher.Constraint("Horizontal", 67, 3, 68, 3))
sketch1.addConstraint(Sketcher.Constraint("Horizontal", 15, 1, 16, 1))
sketch1.addConstraint(Sketcher.Constraint("Horizontal", 11, 2, 17, 2))
sketch1.addConstraint(Sketcher.Constraint("Horizontal", 16, 1, 21, 1))
sketch1.addConstraint(Sketcher.Constraint("Horizontal", 17, 2, 22, 2))
sketch1.addConstraint(Sketcher.Constraint("Horizontal", 21, 1, 26, 1))
sketch1.addConstraint(Sketcher.Constraint("Horizontal", 22, 2, 27, 2))
sketch1.addConstraint(Sketcher.Constraint("Horizontal", 26, 1, 31, 1))
sketch1.addConstraint(Sketcher.Constraint("Horizontal", 27, 2, 32, 2))
sketch1.addConstraint(Sketcher.Constraint("Horizontal", 31, 1, 37, 1))
sketch1.addConstraint(Sketcher.Constraint("Horizontal", 32, 2, 38, 2))
sketch1.addConstraint(Sketcher.Constraint("Horizontal", 37, 1, 42, 1))
sketch1.addConstraint(Sketcher.Constraint("Horizontal", 38, 2, 43, 2))
sketch1.addConstraint(Sketcher.Constraint("Horizontal", 42, 1, 47, 1))
sketch1.addConstraint(Sketcher.Constraint("Horizontal", 43, 2, 48, 2))
sketch1.addConstraint(Sketcher.Constraint("Horizontal", 47, 1, 52, 1))
sketch1.addConstraint(Sketcher.Constraint("Horizontal", 48, 2, 53, 2))
sketch1.addConstraint(Sketcher.Constraint("Horizontal", 52, 1, 57, 1))
sketch1.addConstraint(Sketcher.Constraint("Horizontal", 53, 2, 58, 2))
sketch1.addConstraint(Sketcher.Constraint("Horizontal", 57, 1, 62, 1))
sketch1.addConstraint(Sketcher.Constraint("Horizontal", 58, 2, 63, 2))
sketch1.addConstraint(Sketcher.Constraint("Vertical", 8, 3, 36, 3))
sketch1.addConstraint(Sketcher.Constraint("Vertical", 9, 3, 39, 3))
sketch1.addConstraint(Sketcher.Constraint("Vertical", 41, 3, 67, 3))
sketch1.addConstraint(Sketcher.Constraint("Vertical", 10, 3, 68, 3))
sketch1.addConstraint(Sketcher.Constraint("Vertical", 11, 2, 14, 1))
sketch1.addConstraint(Sketcher.Constraint("Diameter", 8, 8.0))
sketch1.addConstraint(Sketcher.Constraint("Radius", 0, 9.999999))
sketch1.addConstraint(Sketcher.Constraint("DistanceX", 1, 1, 1, 2, 530.0))
sketch1.addConstraint(Sketcher.Constraint("DistanceY", 3, 1, 3, 2, 200.0))
sketch1.addConstraint(Sketcher.Constraint("DistanceY", 13, 2, 13, 1, 140.0))
sketch1.addConstraint(Sketcher.Constraint("DistanceX", -1, 1, 8, 3, 14.0))
sketch1.addConstraint(Sketcher.Constraint("DistanceY", -1, 1, 8, 3, 14.0))
sketch1.addConstraint(Sketcher.Constraint("DistanceX", -1, 1, 9, 3, 275.0))
sketch1.addConstraint(Sketcher.Constraint("DistanceX", -1, 1, 10, 3, 536.0))
sketch1.addConstraint(Sketcher.Constraint("DistanceX", -1, 1, 12, 3, 50.0))
sketch1.addConstraint(Sketcher.Constraint("DistanceY", -1, 1, 12, 3, 180.000001))
sketch1.addConstraint(Sketcher.Constraint("DistanceX", -1, 1, 18, 3, 95.0))
sketch1.addConstraint(Sketcher.Constraint("DistanceX", -1, 1, 23, 3, 140.0))
sketch1.addConstraint(Sketcher.Constraint("DistanceX", -1, 1, 28, 3, 185.0))
sketch1.addConstraint(Sketcher.Constraint("DistanceX", -1, 1, 33, 3, 230.0))
sketch1.addConstraint(Sketcher.Constraint("DistanceY", -1, 1, 36, 3, 206.0))
sketch1.addConstraint(Sketcher.Constraint("DistanceX", -1, 1, 44, 3, 320.0))
sketch1.addConstraint(Sketcher.Constraint("DistanceX", -1, 1, 49, 3, 365.0))
sketch1.addConstraint(Sketcher.Constraint("DistanceX", -1, 1, 54, 3, 410.0))
sketch1.addConstraint(Sketcher.Constraint("DistanceX", -1, 1, 59, 3, 455.0))
sketch1.addConstraint(Sketcher.Constraint("DistanceX", -1, 1, 64, 3, 500.0))
sketch1.addConstraint(Sketcher.Constraint("Radius", 15, 9.994991))
sketch1.addConstraint(Sketcher.Constraint("DistanceY", 11, 1, 11, 2, 139.840542))
pad1 = body.newObject("PartDesign::Pad", "Pad")
pad1.Profile = sketch1
pad1.Length = 2.5

doc.recompute()
